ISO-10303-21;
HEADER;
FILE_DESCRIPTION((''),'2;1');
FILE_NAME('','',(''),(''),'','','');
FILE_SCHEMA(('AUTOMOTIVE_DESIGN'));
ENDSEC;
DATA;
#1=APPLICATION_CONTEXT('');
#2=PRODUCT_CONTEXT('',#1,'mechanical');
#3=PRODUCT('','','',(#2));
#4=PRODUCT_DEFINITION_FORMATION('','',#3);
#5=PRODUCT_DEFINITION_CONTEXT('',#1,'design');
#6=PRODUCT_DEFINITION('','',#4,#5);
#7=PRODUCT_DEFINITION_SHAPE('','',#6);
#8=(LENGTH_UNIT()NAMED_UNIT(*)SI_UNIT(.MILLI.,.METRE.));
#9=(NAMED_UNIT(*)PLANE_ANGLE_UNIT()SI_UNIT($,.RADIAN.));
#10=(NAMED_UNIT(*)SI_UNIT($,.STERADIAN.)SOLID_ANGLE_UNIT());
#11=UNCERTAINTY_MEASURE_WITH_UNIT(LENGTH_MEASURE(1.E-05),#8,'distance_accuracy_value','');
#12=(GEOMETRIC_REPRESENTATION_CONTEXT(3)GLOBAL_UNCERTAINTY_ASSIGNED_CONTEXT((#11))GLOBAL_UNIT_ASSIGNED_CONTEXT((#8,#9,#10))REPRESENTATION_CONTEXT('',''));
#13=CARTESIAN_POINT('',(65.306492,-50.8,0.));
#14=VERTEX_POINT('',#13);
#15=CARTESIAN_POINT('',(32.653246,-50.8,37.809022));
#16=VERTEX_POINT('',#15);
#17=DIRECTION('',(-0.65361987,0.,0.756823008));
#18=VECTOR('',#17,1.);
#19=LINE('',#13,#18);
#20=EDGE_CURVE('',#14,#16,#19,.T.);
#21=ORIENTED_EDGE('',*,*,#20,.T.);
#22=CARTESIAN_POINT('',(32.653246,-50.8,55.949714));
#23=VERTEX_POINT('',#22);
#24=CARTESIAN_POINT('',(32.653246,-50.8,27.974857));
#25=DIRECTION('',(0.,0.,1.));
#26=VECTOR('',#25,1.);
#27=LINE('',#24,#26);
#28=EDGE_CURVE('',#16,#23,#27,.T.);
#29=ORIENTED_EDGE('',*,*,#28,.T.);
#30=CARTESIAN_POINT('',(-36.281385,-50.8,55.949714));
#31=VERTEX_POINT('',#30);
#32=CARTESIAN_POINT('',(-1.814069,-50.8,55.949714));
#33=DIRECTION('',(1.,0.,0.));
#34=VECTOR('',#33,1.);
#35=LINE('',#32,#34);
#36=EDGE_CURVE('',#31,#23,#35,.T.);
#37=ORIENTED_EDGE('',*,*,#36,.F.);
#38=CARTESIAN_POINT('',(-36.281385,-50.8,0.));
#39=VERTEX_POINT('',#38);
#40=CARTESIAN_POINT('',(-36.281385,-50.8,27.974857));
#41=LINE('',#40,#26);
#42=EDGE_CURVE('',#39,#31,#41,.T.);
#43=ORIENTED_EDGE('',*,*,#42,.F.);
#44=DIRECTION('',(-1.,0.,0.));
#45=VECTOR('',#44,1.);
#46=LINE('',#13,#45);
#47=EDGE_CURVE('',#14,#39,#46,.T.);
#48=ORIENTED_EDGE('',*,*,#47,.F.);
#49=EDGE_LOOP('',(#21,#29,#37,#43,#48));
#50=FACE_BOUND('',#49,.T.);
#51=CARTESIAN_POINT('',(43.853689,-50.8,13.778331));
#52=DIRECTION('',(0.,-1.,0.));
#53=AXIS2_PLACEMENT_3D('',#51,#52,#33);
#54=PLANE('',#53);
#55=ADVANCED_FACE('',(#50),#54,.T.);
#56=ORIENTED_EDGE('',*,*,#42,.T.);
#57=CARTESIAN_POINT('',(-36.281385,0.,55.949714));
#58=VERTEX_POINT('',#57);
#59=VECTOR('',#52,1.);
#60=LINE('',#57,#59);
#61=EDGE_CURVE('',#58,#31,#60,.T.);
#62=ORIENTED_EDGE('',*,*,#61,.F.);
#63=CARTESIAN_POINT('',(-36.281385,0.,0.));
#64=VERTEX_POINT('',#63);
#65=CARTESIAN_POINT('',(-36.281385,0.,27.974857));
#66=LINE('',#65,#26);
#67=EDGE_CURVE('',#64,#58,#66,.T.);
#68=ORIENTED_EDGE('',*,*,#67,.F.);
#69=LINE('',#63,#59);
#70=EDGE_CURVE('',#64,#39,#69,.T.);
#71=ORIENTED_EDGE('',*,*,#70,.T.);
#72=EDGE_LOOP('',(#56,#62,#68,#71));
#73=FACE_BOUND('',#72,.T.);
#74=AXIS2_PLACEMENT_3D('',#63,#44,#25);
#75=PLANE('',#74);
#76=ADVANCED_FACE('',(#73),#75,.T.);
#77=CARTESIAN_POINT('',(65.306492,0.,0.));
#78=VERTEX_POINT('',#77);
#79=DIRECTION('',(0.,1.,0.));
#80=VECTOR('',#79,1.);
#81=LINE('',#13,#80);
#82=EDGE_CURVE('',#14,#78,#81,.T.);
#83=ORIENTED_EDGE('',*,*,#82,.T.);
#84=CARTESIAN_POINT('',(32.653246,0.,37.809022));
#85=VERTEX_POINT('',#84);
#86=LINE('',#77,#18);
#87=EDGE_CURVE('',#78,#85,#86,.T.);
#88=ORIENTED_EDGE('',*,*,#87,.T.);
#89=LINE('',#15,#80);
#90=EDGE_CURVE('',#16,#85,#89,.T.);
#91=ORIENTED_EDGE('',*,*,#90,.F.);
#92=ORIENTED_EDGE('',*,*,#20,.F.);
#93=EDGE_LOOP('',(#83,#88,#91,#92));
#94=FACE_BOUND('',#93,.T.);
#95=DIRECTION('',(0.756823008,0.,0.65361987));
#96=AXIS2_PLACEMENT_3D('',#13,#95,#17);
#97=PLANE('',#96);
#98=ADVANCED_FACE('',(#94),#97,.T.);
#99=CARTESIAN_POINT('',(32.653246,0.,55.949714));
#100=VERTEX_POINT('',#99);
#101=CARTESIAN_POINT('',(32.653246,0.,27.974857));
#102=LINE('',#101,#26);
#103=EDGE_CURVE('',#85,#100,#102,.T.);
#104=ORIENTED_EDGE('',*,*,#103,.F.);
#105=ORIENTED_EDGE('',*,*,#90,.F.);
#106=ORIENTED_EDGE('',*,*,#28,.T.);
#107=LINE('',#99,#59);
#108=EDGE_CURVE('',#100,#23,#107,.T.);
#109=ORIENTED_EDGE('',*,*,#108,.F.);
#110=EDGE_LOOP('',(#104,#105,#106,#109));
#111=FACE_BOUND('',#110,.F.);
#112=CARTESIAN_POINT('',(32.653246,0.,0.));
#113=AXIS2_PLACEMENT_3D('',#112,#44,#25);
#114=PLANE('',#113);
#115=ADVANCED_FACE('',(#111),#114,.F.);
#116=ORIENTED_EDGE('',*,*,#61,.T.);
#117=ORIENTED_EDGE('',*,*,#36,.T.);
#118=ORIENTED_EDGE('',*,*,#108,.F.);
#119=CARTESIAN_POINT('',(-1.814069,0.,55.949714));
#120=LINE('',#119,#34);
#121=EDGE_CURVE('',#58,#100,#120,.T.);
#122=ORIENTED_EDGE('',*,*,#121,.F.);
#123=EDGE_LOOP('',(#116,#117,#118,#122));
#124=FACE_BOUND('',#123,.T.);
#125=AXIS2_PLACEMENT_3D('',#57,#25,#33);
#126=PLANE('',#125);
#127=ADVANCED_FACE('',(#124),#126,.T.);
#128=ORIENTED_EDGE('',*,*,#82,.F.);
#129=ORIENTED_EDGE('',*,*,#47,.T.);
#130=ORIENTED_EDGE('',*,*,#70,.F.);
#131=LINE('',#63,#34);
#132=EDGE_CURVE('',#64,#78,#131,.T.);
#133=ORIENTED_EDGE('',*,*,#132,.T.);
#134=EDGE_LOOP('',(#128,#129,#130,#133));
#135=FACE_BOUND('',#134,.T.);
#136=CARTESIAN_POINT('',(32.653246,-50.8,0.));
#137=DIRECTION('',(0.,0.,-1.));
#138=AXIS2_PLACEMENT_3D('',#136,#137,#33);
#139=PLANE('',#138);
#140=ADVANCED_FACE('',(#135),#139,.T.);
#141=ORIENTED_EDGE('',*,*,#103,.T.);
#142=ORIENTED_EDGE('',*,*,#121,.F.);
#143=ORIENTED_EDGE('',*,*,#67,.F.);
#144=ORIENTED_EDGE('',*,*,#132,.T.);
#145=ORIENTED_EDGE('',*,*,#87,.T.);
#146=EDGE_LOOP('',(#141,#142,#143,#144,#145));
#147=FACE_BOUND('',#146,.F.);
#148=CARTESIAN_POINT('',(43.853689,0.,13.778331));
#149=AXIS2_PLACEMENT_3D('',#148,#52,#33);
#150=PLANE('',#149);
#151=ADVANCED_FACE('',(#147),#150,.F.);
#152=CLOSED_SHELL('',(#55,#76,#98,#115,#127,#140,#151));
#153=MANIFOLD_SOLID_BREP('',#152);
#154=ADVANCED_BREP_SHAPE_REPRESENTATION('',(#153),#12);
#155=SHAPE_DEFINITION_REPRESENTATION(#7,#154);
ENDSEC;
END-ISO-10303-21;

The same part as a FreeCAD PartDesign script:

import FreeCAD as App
import Part
import Sketcher

V = App.Vector
Q = App.Units.Quantity


def add_polygon(sketch, points):
    """Adds a closed chain of lines whose ends are joined by coincident constraints."""
    first, n = sketch.GeometryCount, len(points)
    for a, b in zip(points, points[1:] + points[:1]):
        sketch.addGeometry(Part.LineSegment(App.Vector(*a, 0), App.Vector(*b, 0)), False)
    for i in range(n):
        sketch.addConstraint(Sketcher.Constraint("Coincident", first + i, 2, first + (i + 1) % n, 1))

doc = App.newDocument("Part")
body = doc.addObject("PartDesign::Body", "Body")

sketch1 = doc.addObject("Sketcher::SketchObject", "Sketch")
body.addObject(sketch1)
sketch1.AttachmentSupport = (doc.XZ_Plane, [""])
sketch1.MapMode = "FlatFace"
add_polygon(sketch1, [(-36.281385, 55.949714), (-36.281385, 0), (32.653246, 0), (32.653246, 55.949714)])
sketch1.addConstraint(Sketcher.Constraint("Vertical", 0))
sketch1.addConstraint(Sketcher.Constraint("Horizontal", 1))
sketch1.addConstraint(Sketcher.Constraint("Vertical", 2))
sketch1.addConstraint(Sketcher.Constraint("Horizontal", 3))
sketch1.addConstraint(Sketcher.Constraint("PointOnObject", 0, 2, -1))
sketch1.addConstraint(Sketcher.Constraint("DistanceX", 1, 1, 1, 2, 68.934631))
sketch1.addConstraint(Sketcher.Constraint("DistanceY", 0, 2, 0, 1, 55.949714))
sketch1.addConstraint(Sketcher.Constraint("DistanceX", 0, 2, -1, 1, 36.281385))
pad1 = doc.addObject("PartDesign::Pad", "Pad")
body.addObject(pad1)
pad1.Profile = sketch1
pad1.Length = Q("2 in")

sketch2 = doc.addObject("Sketcher::SketchObject", "Sketch001")
body.addObject(sketch2)
sketch2.AttachmentSupport = (doc.XZ_Plane, [""])
sketch2.MapMode = "FlatFace"
sketch2.AttachmentOffset = App.Placement(V(0, 0, 2 * 25.4), App.Rotation())
add_polygon(sketch2, [(65.306492, 0), (32.653246, 37.809022), (32.653246, 0)])
sketch2.addConstraint(Sketcher.Constraint("Vertical", 1))
sketch2.addConstraint(Sketcher.Constraint("Horizontal", 2))
sketch2.addConstraint(Sketcher.Constraint("PointOnObject", 1, 2, -1))
sketch2.addConstraint(Sketcher.Constraint("DistanceY", 1, 2, 1, 1, 37.809022))
sketch2.addConstraint(Sketcher.Constraint("Distance", 0, 49.957548))
sketch2.addConstraint(Sketcher.Constraint("DistanceX", -1, 1, 0, 2, 32.653246))
pad2 = doc.addObject("PartDesign::Pad", "Pad001")
body.addObject(pad2)
pad2.Profile = sketch2
pad2.Length = Q("2 in")
pad2.Reversed = True

doc.recompute()
